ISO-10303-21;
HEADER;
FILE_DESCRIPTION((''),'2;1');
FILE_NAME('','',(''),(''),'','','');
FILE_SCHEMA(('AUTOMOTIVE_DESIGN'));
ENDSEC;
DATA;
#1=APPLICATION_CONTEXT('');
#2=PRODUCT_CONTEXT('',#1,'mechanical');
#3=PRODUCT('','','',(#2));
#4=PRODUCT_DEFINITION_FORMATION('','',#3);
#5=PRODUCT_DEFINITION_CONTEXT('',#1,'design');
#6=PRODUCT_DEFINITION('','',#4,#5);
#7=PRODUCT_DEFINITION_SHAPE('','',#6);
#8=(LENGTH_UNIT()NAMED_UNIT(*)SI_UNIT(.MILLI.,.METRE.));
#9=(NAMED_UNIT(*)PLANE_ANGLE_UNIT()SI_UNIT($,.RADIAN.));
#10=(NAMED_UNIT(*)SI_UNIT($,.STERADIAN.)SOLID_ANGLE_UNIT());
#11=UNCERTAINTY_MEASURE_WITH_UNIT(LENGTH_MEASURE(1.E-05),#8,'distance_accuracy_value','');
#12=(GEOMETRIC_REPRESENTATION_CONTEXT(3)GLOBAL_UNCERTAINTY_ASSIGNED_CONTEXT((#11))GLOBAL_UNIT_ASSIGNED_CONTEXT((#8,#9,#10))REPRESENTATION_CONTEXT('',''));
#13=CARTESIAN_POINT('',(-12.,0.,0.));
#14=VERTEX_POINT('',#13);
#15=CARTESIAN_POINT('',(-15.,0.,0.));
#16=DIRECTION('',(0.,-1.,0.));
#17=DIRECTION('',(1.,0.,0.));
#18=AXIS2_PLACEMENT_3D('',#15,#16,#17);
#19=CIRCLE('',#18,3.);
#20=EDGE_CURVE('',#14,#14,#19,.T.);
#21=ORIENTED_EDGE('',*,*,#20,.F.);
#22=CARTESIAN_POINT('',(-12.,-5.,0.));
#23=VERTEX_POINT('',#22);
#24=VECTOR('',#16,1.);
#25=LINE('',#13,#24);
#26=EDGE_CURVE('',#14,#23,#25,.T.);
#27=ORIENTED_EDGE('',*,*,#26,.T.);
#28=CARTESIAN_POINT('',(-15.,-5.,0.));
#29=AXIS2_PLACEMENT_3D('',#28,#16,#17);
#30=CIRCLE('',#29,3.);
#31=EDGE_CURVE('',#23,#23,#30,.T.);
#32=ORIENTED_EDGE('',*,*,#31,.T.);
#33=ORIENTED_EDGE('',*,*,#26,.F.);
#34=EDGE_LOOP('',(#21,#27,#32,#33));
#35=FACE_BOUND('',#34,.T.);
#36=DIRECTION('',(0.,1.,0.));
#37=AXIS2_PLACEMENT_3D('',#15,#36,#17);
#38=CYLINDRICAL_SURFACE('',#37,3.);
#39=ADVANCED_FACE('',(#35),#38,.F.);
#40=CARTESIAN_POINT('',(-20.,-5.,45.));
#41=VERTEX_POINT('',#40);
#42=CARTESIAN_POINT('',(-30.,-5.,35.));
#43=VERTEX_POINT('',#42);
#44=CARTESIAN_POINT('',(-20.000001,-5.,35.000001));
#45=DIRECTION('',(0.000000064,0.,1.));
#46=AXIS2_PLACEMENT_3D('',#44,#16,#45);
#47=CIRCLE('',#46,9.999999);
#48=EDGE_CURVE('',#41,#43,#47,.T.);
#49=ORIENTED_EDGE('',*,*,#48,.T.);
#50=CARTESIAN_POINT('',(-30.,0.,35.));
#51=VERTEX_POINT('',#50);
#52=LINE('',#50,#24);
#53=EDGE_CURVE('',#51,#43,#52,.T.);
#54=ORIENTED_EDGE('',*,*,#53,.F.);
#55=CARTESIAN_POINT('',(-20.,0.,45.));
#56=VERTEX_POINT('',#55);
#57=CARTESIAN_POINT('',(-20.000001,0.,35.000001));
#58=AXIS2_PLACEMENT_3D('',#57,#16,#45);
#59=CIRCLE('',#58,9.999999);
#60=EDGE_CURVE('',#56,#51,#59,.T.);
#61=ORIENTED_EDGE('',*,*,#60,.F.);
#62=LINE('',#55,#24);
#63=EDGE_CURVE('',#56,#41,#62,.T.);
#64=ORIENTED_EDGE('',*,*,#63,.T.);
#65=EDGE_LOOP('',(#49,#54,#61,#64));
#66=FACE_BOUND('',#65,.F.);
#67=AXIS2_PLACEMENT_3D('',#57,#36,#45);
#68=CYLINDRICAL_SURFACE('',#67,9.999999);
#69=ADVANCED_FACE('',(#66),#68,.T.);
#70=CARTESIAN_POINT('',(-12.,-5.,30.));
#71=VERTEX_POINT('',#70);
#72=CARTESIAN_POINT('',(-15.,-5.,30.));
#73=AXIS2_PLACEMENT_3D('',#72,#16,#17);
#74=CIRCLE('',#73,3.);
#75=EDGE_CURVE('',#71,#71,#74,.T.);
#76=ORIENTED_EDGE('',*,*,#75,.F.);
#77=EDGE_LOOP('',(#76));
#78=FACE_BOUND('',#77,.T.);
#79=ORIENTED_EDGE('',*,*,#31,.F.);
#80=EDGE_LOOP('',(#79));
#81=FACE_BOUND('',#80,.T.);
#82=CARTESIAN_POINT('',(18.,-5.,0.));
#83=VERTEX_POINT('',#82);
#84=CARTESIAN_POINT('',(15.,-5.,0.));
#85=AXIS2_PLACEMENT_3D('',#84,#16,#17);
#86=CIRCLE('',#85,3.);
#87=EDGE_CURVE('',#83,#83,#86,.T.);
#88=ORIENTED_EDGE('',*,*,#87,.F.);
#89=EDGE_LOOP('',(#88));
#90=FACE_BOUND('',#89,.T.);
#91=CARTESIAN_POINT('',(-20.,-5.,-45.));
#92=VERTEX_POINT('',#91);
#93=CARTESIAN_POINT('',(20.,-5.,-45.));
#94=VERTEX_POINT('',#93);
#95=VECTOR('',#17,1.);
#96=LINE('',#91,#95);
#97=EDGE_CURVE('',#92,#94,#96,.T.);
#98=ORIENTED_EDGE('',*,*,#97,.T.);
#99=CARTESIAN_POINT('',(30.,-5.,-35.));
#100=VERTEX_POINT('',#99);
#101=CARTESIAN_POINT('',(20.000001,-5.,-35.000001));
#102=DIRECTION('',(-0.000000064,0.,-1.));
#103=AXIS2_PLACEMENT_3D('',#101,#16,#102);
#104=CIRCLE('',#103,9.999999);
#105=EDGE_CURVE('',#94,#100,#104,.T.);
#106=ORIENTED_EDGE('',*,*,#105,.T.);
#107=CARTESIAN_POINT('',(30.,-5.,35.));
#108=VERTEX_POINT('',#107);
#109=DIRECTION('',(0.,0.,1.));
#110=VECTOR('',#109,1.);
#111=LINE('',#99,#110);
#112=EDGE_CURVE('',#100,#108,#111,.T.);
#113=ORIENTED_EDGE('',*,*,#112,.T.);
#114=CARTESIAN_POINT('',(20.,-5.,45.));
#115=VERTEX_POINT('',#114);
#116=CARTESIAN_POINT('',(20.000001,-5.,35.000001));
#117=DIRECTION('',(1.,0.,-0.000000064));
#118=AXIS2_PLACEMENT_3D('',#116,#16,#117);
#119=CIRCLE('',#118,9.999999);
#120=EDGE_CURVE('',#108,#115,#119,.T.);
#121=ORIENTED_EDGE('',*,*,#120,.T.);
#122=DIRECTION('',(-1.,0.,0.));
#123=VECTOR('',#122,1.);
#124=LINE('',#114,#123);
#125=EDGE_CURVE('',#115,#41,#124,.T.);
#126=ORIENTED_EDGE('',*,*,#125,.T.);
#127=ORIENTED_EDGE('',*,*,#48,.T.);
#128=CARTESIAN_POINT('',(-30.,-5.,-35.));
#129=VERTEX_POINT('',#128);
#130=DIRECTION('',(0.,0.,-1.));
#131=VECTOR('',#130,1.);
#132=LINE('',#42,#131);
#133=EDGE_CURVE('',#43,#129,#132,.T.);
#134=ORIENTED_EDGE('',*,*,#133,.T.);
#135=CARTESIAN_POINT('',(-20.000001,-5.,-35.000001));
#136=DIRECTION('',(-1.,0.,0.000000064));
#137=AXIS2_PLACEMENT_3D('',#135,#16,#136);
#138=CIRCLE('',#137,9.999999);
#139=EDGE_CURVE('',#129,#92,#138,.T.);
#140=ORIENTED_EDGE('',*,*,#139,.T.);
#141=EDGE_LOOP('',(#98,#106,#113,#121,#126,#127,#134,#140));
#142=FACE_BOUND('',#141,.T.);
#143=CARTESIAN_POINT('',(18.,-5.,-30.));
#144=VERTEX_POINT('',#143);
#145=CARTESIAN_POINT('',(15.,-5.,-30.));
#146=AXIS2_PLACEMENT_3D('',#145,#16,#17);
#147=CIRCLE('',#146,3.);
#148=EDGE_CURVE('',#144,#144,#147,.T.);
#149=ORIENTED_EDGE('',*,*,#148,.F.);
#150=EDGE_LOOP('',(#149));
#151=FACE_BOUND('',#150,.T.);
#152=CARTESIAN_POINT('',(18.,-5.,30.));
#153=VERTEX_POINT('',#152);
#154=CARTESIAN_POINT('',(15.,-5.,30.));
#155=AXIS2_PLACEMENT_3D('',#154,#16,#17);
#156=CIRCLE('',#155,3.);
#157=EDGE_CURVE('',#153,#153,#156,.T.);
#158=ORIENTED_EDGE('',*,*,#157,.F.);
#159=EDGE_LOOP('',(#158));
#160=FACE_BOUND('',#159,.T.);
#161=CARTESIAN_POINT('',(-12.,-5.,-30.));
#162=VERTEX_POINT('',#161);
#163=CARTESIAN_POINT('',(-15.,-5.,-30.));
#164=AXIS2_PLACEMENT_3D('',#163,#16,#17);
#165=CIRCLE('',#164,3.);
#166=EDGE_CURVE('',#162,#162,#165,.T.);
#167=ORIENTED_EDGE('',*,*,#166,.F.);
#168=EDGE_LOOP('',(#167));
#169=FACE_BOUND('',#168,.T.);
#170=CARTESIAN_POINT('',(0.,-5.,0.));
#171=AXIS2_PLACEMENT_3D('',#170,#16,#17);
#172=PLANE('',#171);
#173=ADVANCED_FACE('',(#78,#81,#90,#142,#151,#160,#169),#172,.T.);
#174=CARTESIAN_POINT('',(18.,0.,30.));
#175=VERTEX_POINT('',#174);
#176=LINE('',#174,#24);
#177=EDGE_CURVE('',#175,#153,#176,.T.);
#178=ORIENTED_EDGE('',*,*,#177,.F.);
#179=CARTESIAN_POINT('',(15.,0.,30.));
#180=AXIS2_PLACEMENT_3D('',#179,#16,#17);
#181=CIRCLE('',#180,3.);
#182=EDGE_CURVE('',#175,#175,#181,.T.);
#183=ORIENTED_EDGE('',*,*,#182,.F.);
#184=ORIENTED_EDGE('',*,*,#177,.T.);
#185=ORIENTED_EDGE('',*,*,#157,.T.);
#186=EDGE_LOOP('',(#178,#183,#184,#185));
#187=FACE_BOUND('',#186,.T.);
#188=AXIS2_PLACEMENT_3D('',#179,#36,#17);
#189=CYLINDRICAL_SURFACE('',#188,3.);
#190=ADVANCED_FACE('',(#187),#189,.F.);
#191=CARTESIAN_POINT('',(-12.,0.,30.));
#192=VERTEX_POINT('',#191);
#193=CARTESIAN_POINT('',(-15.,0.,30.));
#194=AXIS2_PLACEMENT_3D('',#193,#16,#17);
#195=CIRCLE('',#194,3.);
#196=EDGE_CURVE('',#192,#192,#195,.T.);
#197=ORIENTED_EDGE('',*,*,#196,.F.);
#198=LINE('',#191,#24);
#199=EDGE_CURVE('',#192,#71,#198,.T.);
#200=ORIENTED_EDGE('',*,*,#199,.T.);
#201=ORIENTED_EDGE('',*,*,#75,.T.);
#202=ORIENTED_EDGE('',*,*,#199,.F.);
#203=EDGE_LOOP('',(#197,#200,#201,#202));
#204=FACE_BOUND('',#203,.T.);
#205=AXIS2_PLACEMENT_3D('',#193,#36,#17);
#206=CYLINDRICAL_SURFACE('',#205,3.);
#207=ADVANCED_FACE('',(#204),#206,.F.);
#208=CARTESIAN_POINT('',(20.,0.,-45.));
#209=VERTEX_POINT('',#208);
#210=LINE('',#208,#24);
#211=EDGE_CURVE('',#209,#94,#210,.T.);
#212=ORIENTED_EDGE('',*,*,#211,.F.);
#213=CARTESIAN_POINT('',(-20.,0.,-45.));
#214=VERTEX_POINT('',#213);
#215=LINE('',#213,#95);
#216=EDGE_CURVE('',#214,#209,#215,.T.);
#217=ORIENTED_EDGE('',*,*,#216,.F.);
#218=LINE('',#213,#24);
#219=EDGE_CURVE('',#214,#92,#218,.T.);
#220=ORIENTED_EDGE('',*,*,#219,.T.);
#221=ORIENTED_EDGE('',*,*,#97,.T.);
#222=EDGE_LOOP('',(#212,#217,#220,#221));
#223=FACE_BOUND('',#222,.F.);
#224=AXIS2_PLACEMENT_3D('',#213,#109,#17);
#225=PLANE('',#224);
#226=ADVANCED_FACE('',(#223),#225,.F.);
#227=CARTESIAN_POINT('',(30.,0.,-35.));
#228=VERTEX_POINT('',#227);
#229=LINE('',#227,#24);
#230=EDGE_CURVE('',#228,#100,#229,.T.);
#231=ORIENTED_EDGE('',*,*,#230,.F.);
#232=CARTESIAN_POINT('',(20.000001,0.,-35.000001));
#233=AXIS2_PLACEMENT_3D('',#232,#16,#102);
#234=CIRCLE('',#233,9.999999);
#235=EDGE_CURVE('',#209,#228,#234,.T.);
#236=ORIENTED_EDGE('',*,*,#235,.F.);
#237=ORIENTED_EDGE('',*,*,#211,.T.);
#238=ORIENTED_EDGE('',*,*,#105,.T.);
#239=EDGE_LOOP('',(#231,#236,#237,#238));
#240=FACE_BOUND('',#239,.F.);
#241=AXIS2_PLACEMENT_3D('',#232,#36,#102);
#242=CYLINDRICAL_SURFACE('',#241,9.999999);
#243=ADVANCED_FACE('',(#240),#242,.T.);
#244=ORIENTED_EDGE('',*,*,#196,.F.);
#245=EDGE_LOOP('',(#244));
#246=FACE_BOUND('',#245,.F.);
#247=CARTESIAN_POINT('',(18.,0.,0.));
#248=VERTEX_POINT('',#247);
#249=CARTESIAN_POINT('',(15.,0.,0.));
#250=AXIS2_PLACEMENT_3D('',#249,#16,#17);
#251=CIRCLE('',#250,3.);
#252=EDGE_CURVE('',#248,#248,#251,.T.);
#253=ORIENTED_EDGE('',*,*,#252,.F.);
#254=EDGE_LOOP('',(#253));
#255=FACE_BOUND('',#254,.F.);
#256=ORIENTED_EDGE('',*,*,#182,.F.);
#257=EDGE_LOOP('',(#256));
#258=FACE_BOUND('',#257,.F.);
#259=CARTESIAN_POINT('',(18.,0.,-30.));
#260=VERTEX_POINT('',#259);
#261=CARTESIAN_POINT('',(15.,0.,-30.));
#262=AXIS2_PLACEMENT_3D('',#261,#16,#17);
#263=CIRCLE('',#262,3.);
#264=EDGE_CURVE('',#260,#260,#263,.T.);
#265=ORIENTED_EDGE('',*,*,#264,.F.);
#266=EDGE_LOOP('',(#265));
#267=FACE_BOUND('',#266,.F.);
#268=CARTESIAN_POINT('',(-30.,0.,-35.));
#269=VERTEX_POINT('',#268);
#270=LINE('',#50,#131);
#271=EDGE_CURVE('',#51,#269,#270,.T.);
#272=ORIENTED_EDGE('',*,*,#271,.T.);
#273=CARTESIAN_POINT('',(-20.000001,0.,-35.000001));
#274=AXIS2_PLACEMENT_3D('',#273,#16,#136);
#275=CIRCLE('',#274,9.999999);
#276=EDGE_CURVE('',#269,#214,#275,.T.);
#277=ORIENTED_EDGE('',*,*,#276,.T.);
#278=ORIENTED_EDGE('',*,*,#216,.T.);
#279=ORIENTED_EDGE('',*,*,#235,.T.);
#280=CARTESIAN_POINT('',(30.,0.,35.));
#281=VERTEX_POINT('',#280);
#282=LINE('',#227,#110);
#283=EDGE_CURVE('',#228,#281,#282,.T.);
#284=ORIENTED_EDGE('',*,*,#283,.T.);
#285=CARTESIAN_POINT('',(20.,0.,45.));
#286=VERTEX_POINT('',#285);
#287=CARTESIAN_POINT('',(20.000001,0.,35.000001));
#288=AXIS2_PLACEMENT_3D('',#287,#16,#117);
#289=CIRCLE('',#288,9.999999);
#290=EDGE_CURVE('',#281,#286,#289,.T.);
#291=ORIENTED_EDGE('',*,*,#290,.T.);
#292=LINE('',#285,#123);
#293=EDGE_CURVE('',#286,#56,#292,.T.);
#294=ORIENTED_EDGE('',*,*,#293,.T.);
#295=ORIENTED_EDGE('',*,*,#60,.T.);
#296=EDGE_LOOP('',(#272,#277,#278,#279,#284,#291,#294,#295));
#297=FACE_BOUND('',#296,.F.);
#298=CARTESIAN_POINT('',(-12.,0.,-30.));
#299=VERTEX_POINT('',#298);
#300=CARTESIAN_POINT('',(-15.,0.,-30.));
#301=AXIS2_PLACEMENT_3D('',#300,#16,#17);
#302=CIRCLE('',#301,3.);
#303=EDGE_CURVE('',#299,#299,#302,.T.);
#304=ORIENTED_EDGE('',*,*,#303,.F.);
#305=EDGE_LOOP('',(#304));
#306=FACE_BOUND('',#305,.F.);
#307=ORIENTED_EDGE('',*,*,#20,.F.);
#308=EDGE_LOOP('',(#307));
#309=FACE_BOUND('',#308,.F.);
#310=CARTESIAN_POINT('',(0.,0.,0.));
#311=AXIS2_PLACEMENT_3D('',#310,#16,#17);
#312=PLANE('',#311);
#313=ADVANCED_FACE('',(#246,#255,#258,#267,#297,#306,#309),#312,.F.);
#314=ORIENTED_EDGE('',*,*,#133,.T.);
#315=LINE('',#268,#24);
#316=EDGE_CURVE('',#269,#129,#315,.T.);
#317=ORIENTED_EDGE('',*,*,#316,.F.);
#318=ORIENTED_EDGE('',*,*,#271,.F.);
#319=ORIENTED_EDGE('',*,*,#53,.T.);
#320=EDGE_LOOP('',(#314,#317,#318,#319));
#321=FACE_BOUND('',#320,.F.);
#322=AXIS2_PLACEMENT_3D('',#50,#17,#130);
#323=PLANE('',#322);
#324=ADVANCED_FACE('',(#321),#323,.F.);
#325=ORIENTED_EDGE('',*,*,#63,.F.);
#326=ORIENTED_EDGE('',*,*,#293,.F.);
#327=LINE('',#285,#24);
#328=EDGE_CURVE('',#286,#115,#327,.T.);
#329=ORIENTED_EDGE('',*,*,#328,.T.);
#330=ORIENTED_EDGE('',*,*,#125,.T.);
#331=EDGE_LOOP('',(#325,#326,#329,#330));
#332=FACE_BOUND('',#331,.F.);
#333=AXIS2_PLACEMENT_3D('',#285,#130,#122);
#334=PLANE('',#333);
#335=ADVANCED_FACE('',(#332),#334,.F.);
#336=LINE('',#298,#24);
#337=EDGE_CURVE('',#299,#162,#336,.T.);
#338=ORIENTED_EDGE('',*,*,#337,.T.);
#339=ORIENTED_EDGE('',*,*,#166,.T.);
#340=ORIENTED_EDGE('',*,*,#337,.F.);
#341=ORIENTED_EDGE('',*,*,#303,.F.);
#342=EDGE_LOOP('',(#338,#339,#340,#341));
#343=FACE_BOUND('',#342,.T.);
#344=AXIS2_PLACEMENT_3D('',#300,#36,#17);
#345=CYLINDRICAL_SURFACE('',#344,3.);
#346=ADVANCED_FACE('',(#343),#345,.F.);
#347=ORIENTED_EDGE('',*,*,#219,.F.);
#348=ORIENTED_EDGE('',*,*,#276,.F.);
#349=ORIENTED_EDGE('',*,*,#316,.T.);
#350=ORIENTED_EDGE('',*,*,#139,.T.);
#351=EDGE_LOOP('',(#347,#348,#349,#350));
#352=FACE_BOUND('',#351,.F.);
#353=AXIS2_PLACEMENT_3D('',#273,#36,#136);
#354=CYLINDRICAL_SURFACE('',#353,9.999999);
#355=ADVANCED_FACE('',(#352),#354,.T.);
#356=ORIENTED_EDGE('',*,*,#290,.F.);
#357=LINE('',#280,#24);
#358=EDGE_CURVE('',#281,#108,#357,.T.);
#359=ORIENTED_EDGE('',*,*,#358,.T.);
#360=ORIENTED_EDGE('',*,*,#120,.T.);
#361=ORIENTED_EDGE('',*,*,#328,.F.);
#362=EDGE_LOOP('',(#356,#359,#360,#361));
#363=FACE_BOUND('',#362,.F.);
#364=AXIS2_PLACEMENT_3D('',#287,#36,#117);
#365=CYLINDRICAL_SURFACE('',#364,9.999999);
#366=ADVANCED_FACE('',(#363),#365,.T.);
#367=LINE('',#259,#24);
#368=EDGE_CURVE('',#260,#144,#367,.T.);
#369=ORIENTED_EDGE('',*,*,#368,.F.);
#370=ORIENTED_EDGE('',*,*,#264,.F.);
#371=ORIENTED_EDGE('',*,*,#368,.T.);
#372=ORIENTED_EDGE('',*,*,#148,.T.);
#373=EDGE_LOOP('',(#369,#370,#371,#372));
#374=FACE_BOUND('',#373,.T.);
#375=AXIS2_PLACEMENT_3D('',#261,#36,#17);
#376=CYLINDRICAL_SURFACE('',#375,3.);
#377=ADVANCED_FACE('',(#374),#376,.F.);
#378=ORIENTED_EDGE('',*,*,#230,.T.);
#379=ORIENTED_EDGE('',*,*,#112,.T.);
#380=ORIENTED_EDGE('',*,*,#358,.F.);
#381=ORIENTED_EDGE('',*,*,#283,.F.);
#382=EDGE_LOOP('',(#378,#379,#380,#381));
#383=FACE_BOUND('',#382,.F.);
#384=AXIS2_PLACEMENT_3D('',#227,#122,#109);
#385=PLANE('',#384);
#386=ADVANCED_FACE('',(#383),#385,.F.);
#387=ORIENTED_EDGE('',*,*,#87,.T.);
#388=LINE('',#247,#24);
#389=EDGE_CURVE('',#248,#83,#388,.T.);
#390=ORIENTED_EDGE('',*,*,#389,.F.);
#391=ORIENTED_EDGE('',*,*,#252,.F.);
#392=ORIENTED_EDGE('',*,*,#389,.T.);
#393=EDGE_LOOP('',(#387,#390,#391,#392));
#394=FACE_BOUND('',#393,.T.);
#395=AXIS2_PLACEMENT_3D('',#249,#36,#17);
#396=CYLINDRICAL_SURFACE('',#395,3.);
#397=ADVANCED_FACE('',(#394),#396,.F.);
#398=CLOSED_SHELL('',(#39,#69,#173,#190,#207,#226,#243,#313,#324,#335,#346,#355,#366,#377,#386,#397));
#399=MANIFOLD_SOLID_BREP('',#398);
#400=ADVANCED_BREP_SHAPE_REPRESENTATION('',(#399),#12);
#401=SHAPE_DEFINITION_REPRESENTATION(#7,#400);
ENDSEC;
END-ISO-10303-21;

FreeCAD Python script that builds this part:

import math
import FreeCAD as App
import Part
import Sketcher
from FreeCAD import Vector

doc = App.newDocument("Part")
body = doc.addObject("PartDesign::Body", "Body")

sketch1 = body.newObject("Sketcher::SketchObject", "Sketch")
sketch1.AttachmentSupport = (doc.getObject("XZ_Plane"), [""])
sketch1.MapMode = "FlatFace"
sketch1.addGeometry([
    Part.LineSegment(Vector(20, 45, 0), Vector(-20, 45, 0)),
    Part.ArcOfCircle(Part.Circle(Vector(-20, 35, 0), Vector(0, 0, 1), 10), math.radians(90), math.radians(180)),
    Part.LineSegment(Vector(-30, 35, 0), Vector(-30, -35, 0)),
    Part.ArcOfCircle(Part.Circle(Vector(-20, -35, 0), Vector(0, 0, 1), 10), math.radians(180), math.radians(270)),
    Part.LineSegment(Vector(-20, -45, 0), Vector(20, -45, 0)),
    Part.ArcOfCircle(Part.Circle(Vector(20, -35, 0), Vector(0, 0, 1), 10), math.radians(-90), math.radians(0)),
    Part.LineSegment(Vector(30, -35, 0), Vector(30, 35, 0)),
    Part.ArcOfCircle(Part.Circle(Vector(20, 35, 0), Vector(0, 0, 1), 10), math.radians(0), math.radians(90)),
    Part.Circle(Vector(-15, -30, 0), Vector(0, 0, 1), 3),
    Part.Circle(Vector(15, -30, 0), Vector(0, 0, 1), 3),
    Part.Circle(Vector(-15, 0, 0), Vector(0, 0, 1), 3),
    Part.Circle(Vector(-15, 30, 0), Vector(0, 0, 1), 3),
    Part.Circle(Vector(15, 0, 0), Vector(0, 0, 1), 3),
    Part.Circle(Vector(15, 30, 0), Vector(0, 0, 1), 3),
], False)
sketch1.addConstraint([
    Sketcher.Constraint("Tangent", 0, 2, 1, 1),
    Sketcher.Constraint("Tangent", 1, 2, 2, 1),
    Sketcher.Constraint("Tangent", 2, 2, 3, 1),
    Sketcher.Constraint("Tangent", 3, 2, 4, 1),
    Sketcher.Constraint("Tangent", 4, 2, 5, 1),
    Sketcher.Constraint("Tangent", 5, 2, 6, 1),
    Sketcher.Constraint("Tangent", 6, 2, 7, 1),
    Sketcher.Constraint("Tangent", 7, 2, 0, 1),
    Sketcher.Constraint("Horizontal", 0),
    Sketcher.Constraint("Vertical", 2),
    Sketcher.Constraint("Horizontal", 4),
    Sketcher.Constraint("Vertical", 6),
    Sketcher.Constraint("Equal", 1, 3),
    Sketcher.Constraint("Equal", 3, 5),
    Sketcher.Constraint("Equal", 5, 7),
    Sketcher.Constraint("Equal", 8, 9),
    Sketcher.Constraint("Equal", 9, 10),
    Sketcher.Constraint("Equal", 10, 11),
    Sketcher.Constraint("Equal", 11, 12),
    Sketcher.Constraint("Equal", 12, 13),
    Sketcher.Constraint("Symmetric", 1, 3, 5, 3, -1, 1),
    Sketcher.Constraint("Symmetric", 9, 3, 11, 3, -1, 1),
    Sketcher.Constraint("Symmetric", 10, 3, 12, 3, -1, 1),
    Sketcher.Constraint("Symmetric", 8, 3, 13, 3, -1, 1),
    Sketcher.Constraint("Symmetric", 8, 3, 9, 3, -2),
    Sketcher.Constraint("PointOnObject", 10, 3, -1),
    Sketcher.Constraint("Vertical", 8, 3, 10, 3),
    Sketcher.Constraint("Diameter", 8, 6.0),
    Sketcher.Constraint("Radius", 1, 9.999999),
    Sketcher.Constraint("DistanceX", 0, 2, 0, 1, 40.0),
    Sketcher.Constraint("DistanceY", 2, 2, 2, 1, 70.0),
    Sketcher.Constraint("DistanceX", 8, 3, -1, 1, 15.0),
    Sketcher.Constraint("DistanceY", 8, 3, -1, 1, 30.0),
])
pad1 = body.newObject("PartDesign::Pad", "Pad")
pad1.Profile = sketch1
pad1.Length = 5

doc.recompute()
